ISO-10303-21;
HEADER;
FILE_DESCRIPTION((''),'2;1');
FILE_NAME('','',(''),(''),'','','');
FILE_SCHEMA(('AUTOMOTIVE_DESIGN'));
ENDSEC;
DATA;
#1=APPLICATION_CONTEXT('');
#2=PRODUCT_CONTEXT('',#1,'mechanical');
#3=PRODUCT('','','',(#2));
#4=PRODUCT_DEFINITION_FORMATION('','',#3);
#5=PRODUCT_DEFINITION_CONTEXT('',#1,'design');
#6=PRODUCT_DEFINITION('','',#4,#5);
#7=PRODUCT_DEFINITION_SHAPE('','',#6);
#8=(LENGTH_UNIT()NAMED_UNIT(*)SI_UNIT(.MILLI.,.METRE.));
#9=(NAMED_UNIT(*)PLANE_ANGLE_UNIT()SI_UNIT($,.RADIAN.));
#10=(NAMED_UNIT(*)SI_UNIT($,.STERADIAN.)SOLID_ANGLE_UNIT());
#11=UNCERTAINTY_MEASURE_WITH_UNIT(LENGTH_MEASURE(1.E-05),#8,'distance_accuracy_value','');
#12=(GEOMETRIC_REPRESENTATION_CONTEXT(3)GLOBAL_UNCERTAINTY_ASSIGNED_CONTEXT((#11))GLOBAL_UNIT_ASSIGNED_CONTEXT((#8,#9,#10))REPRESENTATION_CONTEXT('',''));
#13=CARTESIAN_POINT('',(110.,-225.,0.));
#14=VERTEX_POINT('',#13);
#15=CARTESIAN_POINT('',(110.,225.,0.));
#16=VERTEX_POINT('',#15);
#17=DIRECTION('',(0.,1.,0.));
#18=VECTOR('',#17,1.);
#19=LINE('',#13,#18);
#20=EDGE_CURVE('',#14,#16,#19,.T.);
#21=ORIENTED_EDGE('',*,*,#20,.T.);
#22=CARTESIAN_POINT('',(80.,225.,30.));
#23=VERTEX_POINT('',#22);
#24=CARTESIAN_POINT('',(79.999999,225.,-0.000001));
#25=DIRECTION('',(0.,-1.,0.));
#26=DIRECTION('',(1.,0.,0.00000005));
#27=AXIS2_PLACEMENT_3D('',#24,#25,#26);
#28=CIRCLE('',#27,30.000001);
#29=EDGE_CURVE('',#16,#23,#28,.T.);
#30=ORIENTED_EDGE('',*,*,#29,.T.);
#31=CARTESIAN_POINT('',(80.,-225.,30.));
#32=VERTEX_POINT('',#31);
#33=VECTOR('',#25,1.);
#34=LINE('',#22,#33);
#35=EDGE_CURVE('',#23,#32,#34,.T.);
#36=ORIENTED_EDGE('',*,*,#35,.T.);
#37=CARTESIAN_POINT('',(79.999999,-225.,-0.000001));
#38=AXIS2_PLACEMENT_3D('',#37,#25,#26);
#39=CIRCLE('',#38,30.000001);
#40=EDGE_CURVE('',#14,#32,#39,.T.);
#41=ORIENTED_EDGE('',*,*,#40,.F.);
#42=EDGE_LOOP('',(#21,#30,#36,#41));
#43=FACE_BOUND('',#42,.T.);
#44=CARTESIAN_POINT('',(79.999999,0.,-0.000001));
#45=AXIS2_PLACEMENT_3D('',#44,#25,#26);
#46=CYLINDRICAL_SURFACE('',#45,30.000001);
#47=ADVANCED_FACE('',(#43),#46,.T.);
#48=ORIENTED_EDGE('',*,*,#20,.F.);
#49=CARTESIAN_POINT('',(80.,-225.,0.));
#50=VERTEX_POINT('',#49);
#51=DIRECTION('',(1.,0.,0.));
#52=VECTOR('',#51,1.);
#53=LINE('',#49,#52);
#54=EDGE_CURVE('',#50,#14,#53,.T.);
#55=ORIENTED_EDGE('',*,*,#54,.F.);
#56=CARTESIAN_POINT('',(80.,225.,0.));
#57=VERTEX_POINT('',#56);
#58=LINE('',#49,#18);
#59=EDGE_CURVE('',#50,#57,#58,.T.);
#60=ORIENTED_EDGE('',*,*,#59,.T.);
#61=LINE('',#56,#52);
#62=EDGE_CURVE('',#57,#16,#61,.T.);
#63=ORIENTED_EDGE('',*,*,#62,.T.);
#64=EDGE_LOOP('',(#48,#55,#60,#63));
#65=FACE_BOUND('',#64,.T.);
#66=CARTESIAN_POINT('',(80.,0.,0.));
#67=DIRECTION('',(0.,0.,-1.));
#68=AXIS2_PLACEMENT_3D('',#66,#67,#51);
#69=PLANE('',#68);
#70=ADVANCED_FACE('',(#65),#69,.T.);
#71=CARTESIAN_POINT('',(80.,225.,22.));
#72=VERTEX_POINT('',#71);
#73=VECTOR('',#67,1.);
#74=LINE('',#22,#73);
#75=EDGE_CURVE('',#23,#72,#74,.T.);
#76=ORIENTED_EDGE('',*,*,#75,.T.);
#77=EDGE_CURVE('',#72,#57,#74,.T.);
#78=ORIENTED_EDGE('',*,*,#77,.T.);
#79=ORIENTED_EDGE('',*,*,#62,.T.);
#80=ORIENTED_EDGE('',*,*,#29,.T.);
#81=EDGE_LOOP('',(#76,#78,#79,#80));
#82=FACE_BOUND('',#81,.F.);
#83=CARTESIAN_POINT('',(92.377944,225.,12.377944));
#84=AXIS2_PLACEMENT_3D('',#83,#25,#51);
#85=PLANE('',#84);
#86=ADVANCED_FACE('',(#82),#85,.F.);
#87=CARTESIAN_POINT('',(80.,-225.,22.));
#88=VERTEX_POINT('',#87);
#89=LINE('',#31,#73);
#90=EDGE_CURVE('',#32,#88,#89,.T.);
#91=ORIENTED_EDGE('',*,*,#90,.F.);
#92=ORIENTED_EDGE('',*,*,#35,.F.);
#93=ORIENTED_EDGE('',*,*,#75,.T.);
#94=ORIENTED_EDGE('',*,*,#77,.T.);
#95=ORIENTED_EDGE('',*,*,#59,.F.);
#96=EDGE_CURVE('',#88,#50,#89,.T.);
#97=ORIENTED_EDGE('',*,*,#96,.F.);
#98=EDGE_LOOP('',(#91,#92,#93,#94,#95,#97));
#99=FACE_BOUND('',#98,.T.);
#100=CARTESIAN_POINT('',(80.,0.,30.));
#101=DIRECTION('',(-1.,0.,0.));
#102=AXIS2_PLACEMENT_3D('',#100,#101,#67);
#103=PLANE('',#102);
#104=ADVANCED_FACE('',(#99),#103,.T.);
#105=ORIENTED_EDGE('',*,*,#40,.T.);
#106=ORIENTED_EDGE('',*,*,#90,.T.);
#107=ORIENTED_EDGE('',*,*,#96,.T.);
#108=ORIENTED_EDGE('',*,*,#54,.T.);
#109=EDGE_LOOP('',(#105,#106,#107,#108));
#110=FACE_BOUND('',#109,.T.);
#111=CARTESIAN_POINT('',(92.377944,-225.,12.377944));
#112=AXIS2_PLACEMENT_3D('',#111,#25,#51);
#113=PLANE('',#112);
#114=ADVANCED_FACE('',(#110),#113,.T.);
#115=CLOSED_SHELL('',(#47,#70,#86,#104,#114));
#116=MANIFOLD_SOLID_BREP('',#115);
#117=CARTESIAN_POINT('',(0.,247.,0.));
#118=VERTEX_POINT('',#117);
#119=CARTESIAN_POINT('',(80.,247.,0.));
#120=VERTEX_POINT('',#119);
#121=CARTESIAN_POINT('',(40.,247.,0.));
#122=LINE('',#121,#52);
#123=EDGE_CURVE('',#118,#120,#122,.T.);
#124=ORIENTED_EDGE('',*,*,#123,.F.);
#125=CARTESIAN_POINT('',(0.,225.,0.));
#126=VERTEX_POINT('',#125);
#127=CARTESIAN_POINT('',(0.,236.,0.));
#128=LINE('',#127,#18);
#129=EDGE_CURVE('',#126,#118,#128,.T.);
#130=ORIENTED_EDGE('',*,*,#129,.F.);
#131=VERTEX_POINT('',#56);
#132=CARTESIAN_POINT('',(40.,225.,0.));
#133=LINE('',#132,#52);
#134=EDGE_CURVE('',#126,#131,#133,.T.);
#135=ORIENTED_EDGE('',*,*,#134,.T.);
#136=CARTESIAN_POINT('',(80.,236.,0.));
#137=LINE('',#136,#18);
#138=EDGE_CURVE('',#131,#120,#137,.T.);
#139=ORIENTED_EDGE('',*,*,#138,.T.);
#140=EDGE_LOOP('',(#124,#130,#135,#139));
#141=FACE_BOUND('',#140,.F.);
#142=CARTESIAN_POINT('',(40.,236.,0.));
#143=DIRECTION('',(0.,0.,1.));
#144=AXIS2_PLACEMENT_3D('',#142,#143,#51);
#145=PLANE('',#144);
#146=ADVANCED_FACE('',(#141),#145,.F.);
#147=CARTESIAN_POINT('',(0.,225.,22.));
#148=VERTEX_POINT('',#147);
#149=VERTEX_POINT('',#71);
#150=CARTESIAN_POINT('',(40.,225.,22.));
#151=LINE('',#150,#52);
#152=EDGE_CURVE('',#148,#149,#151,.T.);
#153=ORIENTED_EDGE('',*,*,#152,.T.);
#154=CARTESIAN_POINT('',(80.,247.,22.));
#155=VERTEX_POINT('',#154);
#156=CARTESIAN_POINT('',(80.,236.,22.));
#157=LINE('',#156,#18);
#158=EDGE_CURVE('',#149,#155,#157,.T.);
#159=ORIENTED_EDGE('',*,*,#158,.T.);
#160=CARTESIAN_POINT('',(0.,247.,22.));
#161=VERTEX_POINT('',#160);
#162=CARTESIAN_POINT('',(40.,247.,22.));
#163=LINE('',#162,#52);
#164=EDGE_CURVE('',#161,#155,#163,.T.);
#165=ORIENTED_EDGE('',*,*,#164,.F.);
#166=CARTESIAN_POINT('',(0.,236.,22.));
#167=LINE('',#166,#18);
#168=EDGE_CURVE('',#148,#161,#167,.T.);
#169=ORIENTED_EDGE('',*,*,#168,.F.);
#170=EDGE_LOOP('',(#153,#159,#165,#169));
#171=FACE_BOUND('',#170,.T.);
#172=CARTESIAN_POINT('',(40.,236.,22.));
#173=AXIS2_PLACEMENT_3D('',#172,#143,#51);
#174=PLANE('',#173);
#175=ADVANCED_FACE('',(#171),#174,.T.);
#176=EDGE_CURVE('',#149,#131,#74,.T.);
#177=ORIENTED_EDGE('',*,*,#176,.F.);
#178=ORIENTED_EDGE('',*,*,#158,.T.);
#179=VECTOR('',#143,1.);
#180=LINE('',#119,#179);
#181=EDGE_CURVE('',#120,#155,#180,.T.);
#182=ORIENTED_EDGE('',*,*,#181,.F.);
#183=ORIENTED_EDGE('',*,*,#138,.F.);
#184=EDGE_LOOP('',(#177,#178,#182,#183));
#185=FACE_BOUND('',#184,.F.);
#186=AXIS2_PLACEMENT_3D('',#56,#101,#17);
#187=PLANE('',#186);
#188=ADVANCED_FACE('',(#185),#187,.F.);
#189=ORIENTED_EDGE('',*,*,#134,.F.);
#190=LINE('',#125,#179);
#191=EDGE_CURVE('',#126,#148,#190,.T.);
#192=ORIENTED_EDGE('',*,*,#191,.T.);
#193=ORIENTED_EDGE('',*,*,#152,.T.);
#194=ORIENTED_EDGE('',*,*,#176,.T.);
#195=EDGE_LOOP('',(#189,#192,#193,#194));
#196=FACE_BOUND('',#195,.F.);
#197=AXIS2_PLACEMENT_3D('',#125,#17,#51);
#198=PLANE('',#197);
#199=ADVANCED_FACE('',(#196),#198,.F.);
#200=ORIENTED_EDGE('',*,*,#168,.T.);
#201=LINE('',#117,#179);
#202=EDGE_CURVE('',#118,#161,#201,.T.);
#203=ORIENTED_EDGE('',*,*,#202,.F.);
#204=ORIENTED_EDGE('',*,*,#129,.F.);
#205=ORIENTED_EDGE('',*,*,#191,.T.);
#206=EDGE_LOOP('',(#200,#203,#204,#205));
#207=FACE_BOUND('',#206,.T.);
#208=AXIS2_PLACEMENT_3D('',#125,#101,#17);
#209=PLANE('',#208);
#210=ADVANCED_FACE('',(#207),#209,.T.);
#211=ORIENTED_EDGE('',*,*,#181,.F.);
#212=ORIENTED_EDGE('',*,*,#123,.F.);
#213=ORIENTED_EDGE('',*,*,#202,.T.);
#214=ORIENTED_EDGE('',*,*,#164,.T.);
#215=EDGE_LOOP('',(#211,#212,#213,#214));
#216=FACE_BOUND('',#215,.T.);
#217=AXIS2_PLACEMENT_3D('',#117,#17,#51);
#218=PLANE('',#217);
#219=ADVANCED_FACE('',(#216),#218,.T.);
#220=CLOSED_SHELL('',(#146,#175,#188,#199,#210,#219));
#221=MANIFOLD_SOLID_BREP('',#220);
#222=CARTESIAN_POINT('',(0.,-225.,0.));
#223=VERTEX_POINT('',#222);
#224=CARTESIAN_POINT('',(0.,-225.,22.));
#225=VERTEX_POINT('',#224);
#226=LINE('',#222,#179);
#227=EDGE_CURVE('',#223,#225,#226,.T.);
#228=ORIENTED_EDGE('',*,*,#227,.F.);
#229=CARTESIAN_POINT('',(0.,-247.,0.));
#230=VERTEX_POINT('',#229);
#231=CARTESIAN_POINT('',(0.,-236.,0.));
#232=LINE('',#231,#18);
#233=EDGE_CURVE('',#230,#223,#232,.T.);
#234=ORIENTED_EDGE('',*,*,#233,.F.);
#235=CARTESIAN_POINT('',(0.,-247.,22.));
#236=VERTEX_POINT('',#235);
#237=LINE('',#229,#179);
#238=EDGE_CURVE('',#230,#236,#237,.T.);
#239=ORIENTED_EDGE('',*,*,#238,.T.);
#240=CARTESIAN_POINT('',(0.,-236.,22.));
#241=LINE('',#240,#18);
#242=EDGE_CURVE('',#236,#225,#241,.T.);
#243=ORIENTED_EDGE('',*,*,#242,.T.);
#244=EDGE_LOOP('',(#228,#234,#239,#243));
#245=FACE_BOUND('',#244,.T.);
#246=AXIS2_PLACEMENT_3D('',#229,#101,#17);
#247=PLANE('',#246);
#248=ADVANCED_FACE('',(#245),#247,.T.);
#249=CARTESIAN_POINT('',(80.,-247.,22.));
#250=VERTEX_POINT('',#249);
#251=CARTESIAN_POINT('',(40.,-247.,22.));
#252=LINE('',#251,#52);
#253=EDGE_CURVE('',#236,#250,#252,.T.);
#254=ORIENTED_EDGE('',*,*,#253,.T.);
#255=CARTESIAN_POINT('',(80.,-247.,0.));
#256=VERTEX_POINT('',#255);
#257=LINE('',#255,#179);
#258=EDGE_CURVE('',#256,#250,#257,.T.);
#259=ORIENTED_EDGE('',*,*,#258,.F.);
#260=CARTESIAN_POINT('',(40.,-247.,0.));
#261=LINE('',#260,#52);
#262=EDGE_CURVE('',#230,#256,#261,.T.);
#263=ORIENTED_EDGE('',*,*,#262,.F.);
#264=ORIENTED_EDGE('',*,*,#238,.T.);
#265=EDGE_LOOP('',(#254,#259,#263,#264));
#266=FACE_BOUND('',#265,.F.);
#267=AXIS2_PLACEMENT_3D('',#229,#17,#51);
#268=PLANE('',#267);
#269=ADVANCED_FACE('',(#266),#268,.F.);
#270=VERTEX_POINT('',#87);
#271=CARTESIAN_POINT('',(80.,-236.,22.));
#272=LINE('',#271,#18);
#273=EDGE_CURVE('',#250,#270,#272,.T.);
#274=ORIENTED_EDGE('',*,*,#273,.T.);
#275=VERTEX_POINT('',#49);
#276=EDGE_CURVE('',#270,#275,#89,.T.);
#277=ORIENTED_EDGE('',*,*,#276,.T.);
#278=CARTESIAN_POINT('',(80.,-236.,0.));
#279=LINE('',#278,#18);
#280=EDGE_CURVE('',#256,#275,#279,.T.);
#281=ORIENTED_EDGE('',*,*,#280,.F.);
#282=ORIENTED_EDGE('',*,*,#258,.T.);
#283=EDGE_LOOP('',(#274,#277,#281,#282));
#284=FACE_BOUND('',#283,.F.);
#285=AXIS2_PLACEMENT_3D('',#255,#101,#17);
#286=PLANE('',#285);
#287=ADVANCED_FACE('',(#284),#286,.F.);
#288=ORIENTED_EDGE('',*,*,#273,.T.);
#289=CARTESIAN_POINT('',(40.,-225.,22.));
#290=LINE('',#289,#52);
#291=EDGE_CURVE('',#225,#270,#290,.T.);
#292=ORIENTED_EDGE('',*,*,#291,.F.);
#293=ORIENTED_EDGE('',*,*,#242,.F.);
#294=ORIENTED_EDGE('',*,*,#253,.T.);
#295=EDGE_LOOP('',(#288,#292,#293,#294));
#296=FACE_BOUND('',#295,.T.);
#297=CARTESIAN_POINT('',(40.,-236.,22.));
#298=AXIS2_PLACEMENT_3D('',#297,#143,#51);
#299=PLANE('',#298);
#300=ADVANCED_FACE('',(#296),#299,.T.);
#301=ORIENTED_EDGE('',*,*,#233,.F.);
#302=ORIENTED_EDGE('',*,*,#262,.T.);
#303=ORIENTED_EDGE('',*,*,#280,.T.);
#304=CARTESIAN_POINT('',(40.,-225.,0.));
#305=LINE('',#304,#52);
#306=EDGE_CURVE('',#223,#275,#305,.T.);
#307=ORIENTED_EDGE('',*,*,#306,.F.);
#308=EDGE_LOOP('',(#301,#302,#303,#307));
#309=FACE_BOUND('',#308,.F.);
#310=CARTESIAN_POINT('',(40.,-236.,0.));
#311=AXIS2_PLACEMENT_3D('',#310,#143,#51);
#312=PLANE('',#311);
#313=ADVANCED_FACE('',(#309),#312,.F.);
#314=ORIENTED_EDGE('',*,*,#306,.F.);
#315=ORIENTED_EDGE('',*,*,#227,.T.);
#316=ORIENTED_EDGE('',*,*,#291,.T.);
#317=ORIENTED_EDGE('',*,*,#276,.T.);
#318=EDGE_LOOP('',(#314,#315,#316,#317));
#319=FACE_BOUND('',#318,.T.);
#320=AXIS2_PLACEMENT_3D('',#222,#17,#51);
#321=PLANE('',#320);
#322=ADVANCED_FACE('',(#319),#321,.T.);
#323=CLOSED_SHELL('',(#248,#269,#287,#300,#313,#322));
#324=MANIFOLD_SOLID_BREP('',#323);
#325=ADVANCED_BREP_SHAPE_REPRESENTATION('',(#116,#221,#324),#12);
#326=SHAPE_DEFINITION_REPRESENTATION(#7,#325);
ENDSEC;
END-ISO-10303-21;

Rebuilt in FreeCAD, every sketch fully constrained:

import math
import FreeCAD as App
import Part
import Sketcher
from FreeCAD import Vector


def add_polygon(sketch, points):
    """Adds a closed chain of lines whose ends are joined by coincident constraints."""
    first, n = sketch.GeometryCount, len(points)
    for a, b in zip(points, points[1:] + points[:1]):
        sketch.addGeometry(Part.LineSegment(App.Vector(*a, 0), App.Vector(*b, 0)), False)
    for i in range(n):
        sketch.addConstraint(Sketcher.Constraint("Coincident", first + i, 2, first + (i + 1) % n, 1))

doc = App.newDocument("Part")
params = doc.addObject("Spreadsheet::Sheet", "Params")
for row, (alias, value) in enumerate([
    ("sketch1_width", "80 mm"),
    ("sketch1_height", "22 mm"),
    ("pad1_length", "22 mm"),
    ("sketch2_radius", "30.000001 mm"),
    ("pad2_length", "225 mm"),
    ("pad2_length2", "225 mm"),
], start=1):
    params.set(f"A{row}", alias)
    params.set(f"B{row}", "=" + value)
    params.setAlias(f"B{row}", alias)

body = doc.addObject("PartDesign::Body", "Body")
body.AllowCompound = True

sketch1 = body.newObject("Sketcher::SketchObject", "Sketch")
sketch1.AttachmentSupport = (doc.getObject("XY_Plane"), [""])
sketch1.MapMode = "FlatFace"
add_polygon(sketch1, [(0, 247), (0, 225), (80, 225), (80, 247)])
add_polygon(sketch1, [(0, -225), (0, -247), (80, -247), (80, -225)])
sketch1.addConstraint([
    Sketcher.Constraint("Vertical", 0),
    Sketcher.Constraint("Horizontal", 1),
    Sketcher.Constraint("Vertical", 2),
    Sketcher.Constraint("Horizontal", 3),
    Sketcher.Constraint("Vertical", 4),
    Sketcher.Constraint("Horizontal", 5),
    Sketcher.Constraint("Vertical", 6),
    Sketcher.Constraint("Horizontal", 7),
    Sketcher.Constraint("Symmetric", 3, 2, 4, 2, -1, 1),
    Sketcher.Constraint("Symmetric", 1, 2, 6, 2, -1),
    Sketcher.Constraint("PointOnObject", 0, 2, -2),
    Sketcher.Constraint("DistanceX", 1, 1, 1, 2, 80.0),
    Sketcher.Constraint("DistanceY", 0, 2, 0, 1, 22.0),
    Sketcher.Constraint("DistanceY", -1, 1, 0, 2, 225.0),
])
sketch1.setExpression("Constraints[19]", "Params.sketch1_width")
sketch1.setExpression("Constraints[20]", "Params.sketch1_height")
pad1 = body.newObject("PartDesign::Pad", "Pad")
pad1.Profile = sketch1
pad1.setExpression("Length", "Params.pad1_length")
body2 = doc.addObject("PartDesign::Body", "Body001")
body2.AllowCompound = True

sketch2 = body2.newObject("Sketcher::SketchObject", "Sketch001")
sketch2.AttachmentSupport = (doc.getObject("XZ_Plane001"), [""])
sketch2.MapMode = "FlatFace"
sketch2.addGeometry([
    Part.ArcOfCircle(Part.Circle(Vector(80, 0, 0), Vector(0, 0, 1), 30), math.radians(0), math.radians(90)),
    Part.LineSegment(Vector(80, 30, 0), Vector(80, 0, 0)),
    Part.LineSegment(Vector(80, 0, 0), Vector(110, 0, 0)),
], False)
sketch2.addConstraint([
    Sketcher.Constraint("Coincident", 0, 2, 1, 1),
    Sketcher.Constraint("Coincident", 1, 2, 2, 1),
    Sketcher.Constraint("Coincident", 2, 2, 0, 1),
    Sketcher.Constraint("Vertical", 1),
    Sketcher.Constraint("Horizontal", 2),
    Sketcher.Constraint("Coincident", 1, 2, 0, 3),
    Sketcher.Constraint("PointOnObject", 0, 3, -1),
    Sketcher.Constraint("Radius", 0, 30.000001),
    Sketcher.Constraint("DistanceX", -1, 1, 0, 3, 79.999999),
])
sketch2.setExpression("Constraints[7]", "Params.sketch2_radius")
pad2 = body2.newObject("PartDesign::Pad", "Pad001")
pad2.Profile = sketch2
pad2.Type = "TwoLengths"
pad2.setExpression("Length", "Params.pad2_length")
pad2.setExpression("Length2", "Params.pad2_length2")
doc.recompute()

boolean = body2.newObject("PartDesign::Boolean", "Boolean")
boolean.Type = "Fuse"
boolean.addObjects([body])

doc.recompute()
